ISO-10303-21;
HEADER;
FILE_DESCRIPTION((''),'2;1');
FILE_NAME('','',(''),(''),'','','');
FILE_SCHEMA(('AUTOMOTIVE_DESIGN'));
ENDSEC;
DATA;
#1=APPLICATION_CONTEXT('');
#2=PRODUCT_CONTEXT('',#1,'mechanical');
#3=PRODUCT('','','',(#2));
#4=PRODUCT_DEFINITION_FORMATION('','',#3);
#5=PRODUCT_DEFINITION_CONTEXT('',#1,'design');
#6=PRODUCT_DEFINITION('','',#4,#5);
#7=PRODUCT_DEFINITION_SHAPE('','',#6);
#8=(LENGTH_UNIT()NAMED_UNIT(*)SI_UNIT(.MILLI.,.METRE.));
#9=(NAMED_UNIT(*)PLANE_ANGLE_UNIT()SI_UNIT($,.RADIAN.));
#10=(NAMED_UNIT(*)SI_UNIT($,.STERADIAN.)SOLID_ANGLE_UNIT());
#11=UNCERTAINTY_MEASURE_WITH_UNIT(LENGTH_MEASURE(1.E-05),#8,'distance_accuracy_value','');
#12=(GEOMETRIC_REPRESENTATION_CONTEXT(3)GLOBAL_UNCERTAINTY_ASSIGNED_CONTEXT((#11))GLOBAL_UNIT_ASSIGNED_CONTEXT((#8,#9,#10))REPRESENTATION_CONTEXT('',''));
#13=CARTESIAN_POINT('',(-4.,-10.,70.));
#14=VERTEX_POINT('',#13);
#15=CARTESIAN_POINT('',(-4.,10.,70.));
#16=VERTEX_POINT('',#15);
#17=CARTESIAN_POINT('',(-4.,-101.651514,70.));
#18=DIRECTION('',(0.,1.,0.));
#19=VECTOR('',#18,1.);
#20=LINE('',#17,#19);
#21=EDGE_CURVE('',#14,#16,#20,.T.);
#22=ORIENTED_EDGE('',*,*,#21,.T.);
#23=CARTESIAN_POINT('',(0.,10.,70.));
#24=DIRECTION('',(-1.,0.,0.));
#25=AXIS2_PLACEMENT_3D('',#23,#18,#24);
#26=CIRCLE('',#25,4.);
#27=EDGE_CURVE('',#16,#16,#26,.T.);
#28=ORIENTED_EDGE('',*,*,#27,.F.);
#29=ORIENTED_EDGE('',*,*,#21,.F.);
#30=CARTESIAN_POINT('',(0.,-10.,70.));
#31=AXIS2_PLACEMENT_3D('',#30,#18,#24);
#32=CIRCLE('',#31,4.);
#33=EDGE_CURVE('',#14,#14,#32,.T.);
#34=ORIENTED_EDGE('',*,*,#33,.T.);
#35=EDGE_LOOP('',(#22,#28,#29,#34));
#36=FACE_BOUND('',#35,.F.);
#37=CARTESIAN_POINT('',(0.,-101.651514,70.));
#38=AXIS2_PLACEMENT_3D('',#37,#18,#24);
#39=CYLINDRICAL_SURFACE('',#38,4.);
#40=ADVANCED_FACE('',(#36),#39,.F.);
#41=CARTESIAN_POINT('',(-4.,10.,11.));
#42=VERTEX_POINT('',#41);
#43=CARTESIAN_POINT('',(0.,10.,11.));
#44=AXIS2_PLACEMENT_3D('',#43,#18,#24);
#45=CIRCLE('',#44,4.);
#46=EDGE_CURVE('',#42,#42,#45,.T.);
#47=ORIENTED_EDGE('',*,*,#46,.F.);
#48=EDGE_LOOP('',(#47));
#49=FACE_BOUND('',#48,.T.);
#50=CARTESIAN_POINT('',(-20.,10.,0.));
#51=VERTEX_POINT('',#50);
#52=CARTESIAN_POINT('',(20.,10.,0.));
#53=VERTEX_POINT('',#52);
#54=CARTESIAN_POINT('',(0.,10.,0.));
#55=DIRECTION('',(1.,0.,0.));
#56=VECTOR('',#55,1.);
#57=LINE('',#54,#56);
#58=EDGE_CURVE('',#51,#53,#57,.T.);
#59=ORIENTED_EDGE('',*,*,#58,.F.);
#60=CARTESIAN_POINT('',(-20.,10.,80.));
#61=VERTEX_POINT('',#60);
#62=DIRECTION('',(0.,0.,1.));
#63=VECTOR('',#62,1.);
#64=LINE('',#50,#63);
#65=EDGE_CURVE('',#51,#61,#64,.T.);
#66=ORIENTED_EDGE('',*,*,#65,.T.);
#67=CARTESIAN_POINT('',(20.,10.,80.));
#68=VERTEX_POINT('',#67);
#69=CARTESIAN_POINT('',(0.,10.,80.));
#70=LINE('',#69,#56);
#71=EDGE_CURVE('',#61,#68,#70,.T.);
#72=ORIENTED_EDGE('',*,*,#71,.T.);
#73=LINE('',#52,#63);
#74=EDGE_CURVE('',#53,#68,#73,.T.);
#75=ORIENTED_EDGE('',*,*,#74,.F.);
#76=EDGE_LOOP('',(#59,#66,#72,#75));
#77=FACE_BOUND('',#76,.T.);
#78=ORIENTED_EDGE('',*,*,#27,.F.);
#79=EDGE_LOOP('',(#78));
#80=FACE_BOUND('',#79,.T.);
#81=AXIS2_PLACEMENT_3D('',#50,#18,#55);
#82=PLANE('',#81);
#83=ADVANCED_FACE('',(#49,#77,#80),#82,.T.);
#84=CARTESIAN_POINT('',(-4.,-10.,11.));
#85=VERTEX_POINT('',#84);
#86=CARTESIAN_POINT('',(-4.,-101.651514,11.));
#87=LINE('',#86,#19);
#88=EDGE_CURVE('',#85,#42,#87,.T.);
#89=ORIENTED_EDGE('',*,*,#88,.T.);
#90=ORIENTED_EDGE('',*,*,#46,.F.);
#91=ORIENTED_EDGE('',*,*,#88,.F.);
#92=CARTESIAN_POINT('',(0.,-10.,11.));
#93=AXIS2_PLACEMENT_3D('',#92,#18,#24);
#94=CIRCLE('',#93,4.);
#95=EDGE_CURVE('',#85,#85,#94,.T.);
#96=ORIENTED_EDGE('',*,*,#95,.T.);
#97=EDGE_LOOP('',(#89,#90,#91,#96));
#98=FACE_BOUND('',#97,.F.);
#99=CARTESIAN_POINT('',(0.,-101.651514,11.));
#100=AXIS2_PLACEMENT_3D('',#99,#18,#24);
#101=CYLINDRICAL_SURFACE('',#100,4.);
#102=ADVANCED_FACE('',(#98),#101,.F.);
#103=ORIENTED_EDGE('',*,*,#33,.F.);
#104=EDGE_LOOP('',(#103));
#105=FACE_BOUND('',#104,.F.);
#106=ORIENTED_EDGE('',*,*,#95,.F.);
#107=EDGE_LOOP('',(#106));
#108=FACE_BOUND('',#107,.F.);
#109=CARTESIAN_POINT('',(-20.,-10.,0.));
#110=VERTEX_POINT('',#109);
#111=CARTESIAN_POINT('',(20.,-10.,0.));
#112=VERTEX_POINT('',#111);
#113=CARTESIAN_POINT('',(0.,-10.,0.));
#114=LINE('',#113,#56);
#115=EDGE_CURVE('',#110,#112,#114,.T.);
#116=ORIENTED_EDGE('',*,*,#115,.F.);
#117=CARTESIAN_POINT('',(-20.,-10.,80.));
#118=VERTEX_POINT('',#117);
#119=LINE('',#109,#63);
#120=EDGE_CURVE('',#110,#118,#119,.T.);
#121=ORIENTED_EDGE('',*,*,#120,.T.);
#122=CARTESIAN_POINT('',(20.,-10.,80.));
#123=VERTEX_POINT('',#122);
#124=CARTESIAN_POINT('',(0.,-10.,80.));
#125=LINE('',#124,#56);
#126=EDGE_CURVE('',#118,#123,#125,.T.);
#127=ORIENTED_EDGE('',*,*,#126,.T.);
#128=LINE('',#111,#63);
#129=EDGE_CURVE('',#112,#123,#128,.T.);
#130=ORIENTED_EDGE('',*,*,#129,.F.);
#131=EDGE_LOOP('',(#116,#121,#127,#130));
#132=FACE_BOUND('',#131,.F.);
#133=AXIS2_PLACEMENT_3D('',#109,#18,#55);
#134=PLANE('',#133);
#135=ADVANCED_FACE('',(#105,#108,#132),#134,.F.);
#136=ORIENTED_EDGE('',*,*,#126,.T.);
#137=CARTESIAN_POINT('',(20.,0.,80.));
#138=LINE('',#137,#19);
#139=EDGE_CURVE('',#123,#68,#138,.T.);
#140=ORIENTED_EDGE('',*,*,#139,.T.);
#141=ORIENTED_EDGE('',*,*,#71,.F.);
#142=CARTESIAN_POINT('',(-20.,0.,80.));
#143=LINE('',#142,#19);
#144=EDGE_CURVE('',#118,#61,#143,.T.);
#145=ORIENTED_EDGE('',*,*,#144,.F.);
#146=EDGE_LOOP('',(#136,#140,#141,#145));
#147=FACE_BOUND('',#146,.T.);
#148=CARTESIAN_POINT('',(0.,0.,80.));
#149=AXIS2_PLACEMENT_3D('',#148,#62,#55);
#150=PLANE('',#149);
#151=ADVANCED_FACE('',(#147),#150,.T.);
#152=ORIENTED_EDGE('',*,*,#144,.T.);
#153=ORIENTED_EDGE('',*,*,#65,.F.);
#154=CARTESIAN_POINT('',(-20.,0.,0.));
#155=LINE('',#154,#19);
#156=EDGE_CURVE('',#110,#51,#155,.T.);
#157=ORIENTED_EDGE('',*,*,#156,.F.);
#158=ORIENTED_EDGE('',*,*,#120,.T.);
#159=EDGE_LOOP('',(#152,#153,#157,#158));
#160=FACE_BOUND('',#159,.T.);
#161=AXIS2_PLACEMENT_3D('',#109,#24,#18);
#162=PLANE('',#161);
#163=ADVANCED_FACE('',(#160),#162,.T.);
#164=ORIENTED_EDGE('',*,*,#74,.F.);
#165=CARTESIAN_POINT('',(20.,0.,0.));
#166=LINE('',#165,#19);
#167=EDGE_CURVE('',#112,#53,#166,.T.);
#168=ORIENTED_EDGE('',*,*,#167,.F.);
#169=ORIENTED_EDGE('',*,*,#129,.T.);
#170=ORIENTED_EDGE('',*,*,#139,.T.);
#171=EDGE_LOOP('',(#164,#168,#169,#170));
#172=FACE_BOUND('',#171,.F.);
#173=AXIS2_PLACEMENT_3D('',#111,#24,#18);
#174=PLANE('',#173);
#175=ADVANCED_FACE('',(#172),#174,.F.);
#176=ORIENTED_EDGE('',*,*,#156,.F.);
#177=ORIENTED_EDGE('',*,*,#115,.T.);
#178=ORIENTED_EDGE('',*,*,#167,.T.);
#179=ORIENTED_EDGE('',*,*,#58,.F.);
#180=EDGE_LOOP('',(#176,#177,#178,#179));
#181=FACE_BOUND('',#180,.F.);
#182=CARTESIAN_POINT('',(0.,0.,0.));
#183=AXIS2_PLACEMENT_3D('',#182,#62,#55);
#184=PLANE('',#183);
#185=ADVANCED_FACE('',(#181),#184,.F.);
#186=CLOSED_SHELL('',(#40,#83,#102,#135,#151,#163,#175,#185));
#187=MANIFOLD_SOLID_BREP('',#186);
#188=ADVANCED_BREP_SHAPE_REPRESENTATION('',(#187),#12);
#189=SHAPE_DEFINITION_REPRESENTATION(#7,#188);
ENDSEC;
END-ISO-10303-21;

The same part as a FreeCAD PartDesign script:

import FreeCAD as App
import Part
import Sketcher
Q = App.Units.Quantity

doc = App.newDocument("Part")
body = doc.addObject("PartDesign::Body", "Body")

# Sketch on XY plane
sketch1 = doc.addObject("Sketcher::SketchObject", "Sketch")
body.addObject(sketch1)
sketch1.AttachmentSupport = (doc.XY_Plane, [""])
sketch1.MapMode = "FlatFace"
sketch1.addGeometry(Part.LineSegment(App.Vector(-20, 10, 0), App.Vector(-20, -10, 0)), False)
sketch1.addGeometry(Part.LineSegment(App.Vector(-20, -10, 0), App.Vector(20, -10, 0)), False)
sketch1.addGeometry(Part.LineSegment(App.Vector(20, -10, 0), App.Vector(20, 10, 0)), False)
sketch1.addGeometry(Part.LineSegment(App.Vector(20, 10, 0), App.Vector(-20, 10, 0)), False)
sketch1.addConstraint(Sketcher.Constraint("Coincident", 0, 2, 1, 1))
sketch1.addConstraint(Sketcher.Constraint("Coincident", 1, 2, 2, 1))
sketch1.addConstraint(Sketcher.Constraint("Coincident", 2, 2, 3, 1))
sketch1.addConstraint(Sketcher.Constraint("Coincident", 3, 2, 0, 1))
sketch1.addConstraint(Sketcher.Constraint("Vertical", 0))
sketch1.addConstraint(Sketcher.Constraint("Horizontal", 1))
sketch1.addConstraint(Sketcher.Constraint("Vertical", 2))
sketch1.addConstraint(Sketcher.Constraint("Horizontal", 3))
sketch1.addConstraint(Sketcher.Constraint("Symmetric", 0, 2, 2, 2, -1, 1))
sketch1.addConstraint(Sketcher.Constraint("DistanceX", 1, 1, 1, 2, Q("40 mm")))
sketch1.addConstraint(Sketcher.Constraint("DistanceY", 0, 2, 0, 1, Q("20 mm")))
pad1 = doc.addObject("PartDesign::Pad", "Pad")
body.addObject(pad1)
pad1.Profile = sketch1
pad1.Length = 80

# Sketch on XZ plane
sketch2 = doc.addObject("Sketcher::SketchObject", "Sketch001")
body.addObject(sketch2)
sketch2.AttachmentSupport = (doc.XZ_Plane, [""])
sketch2.MapMode = "FlatFace"
sketch2.AttachmentOffset = App.Placement(App.Vector(0, 0, 10), App.Rotation())
sketch2.addGeometry(Part.Circle(App.Vector(0, 70, 0), App.Vector(0, 0, 1), 4), False)
sketch2.addGeometry(Part.Circle(App.Vector(0, 11, 0), App.Vector(0, 0, 1), 4), False)
sketch2.addConstraint(Sketcher.Constraint("Equal", 0, 1))
sketch2.addConstraint(Sketcher.Constraint("PointOnObject", 0, 3, -2))
sketch2.addConstraint(Sketcher.Constraint("PointOnObject", 1, 3, -2))
sketch2.addConstraint(Sketcher.Constraint("Diameter", 0, Q("8 mm")))
sketch2.addConstraint(Sketcher.Constraint("DistanceY", -1, 1, 0, 3, Q("70 mm")))
sketch2.addConstraint(Sketcher.Constraint("DistanceY", -1, 1, 1, 3, Q("11 mm")))
doc.recompute()
hole = doc.addObject("PartDesign::Hole", "Hole")
body.addObject(hole)
hole.Profile = sketch2
hole.ThreadType = "None"
hole.Diameter = 8
hole.DepthType = "ThroughAll"

doc.recompute()
